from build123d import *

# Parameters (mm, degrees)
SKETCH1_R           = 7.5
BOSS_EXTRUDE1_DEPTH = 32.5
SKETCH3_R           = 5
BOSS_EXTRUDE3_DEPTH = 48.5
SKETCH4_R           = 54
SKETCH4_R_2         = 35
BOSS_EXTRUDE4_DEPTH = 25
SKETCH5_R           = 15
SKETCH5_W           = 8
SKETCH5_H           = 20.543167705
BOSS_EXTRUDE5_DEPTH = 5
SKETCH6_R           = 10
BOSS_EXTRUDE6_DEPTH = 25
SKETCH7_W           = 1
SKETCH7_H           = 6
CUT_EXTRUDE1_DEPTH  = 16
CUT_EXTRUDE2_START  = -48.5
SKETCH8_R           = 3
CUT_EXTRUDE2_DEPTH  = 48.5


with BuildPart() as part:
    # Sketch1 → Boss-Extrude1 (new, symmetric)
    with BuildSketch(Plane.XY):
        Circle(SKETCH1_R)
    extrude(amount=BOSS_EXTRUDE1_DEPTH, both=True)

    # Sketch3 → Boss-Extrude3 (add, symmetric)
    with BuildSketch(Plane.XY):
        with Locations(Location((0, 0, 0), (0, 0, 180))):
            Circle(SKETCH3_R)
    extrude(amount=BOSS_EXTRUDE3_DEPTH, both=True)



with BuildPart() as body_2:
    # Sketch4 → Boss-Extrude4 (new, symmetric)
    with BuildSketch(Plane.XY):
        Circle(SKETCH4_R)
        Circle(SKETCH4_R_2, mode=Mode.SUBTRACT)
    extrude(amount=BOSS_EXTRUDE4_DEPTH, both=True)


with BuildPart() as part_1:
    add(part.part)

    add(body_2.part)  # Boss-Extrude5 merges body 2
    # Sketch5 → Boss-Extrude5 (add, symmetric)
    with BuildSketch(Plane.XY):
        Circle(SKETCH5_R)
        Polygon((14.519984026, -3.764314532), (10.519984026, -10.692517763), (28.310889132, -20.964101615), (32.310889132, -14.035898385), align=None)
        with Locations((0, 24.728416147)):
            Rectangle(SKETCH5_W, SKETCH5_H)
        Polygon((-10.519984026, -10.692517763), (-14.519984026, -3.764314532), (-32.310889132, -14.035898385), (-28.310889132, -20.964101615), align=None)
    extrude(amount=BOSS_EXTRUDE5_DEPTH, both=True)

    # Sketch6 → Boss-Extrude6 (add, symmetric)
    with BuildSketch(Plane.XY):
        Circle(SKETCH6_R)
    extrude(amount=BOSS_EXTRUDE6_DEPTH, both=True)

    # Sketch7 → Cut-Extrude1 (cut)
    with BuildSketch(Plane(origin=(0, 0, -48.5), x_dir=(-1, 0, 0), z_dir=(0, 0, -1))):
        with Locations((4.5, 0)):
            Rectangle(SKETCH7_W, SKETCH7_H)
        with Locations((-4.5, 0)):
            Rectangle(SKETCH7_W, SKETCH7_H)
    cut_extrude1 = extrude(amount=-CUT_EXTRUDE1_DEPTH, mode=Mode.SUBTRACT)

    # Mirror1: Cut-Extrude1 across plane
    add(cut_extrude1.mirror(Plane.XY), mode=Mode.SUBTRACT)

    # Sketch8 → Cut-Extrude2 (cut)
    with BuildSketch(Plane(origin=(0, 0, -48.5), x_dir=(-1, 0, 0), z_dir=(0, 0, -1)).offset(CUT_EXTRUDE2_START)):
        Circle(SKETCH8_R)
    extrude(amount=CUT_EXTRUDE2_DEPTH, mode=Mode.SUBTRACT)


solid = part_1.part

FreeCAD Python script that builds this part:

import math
import FreeCAD as App
import Part
import Sketcher

V = App.Vector
Q = App.Units.Quantity


def add_polygon(sketch, points):
    """Adds a closed chain of lines whose ends are joined by coincident constraints."""
    first, n = sketch.GeometryCount, len(points)
    for a, b in zip(points, points[1:] + points[:1]):
        sketch.addGeometry(Part.LineSegment(App.Vector(*a, 0), App.Vector(*b, 0)), False)
    for i in range(n):
        sketch.addConstraint(Sketcher.Constraint("Coincident", first + i, 2, first + (i + 1) % n, 1))

doc = App.newDocument("Part")
body = doc.addObject("PartDesign::Body", "Body")

# Sketch on XY plane
sketch1 = doc.addObject("Sketcher::SketchObject", "Sketch")
body.addObject(sketch1)
sketch1.AttachmentSupport = (doc.XY_Plane, [""])
sketch1.MapMode = "FlatFace"
sketch1.addGeometry(Part.Circle(V(0, 0, 0), V(0, 0, 1), 8), False)
sketch1.addConstraint(Sketcher.Constraint("Coincident", 0, 3, -1, 1))
sketch1.addConstraint(Sketcher.Constraint("Diameter", 0, Q("15 mm")))
pad1 = doc.addObject("PartDesign::Pad", "Pad")
body.addObject(pad1)
pad1.Profile = sketch1
pad1.Length = 65
pad1.Midplane = True

# Sketch on XY plane
sketch2 = doc.addObject("Sketcher::SketchObject", "Sketch001")
body.addObject(sketch2)
sketch2.AttachmentSupport = (doc.XY_Plane, [""])
sketch2.MapMode = "FlatFace"
sketch2.addGeometry(Part.Circle(V(0, 0, 0), V(0, 0, 1), 5), False)
sketch2.addConstraint(Sketcher.Constraint("Coincident", 0, 3, -1, 1))
sketch2.addConstraint(Sketcher.Constraint("Diameter", 0, Q("10 mm")))
pad2 = doc.addObject("PartDesign::Pad", "Pad001")
body.addObject(pad2)
pad2.Profile = sketch2
pad2.Length = 97
pad2.Midplane = True
body2 = doc.addObject("PartDesign::Body", "Body001")

# Sketch on XY plane
sketch3 = doc.addObject("Sketcher::SketchObject", "Sketch002")
body2.addObject(sketch3)
sketch3.AttachmentSupport = (doc.getObject("XY_Plane001"), [""])
sketch3.MapMode = "FlatFace"
sketch3.addGeometry(Part.Circle(V(0, 0, 0), V(0, 0, 1), 54), False)
sketch3.addGeometry(Part.Circle(V(0, 0, 0), V(0, 0, 1), 35), False)
sketch3.addConstraint(Sketcher.Constraint("Coincident", 0, 3, -1, 1))
sketch3.addConstraint(Sketcher.Constraint("Coincident", 1, 3, -1, 1))
sketch3.addConstraint(Sketcher.Constraint("Diameter", 0, Q("108 mm")))
sketch3.addConstraint(Sketcher.Constraint("Diameter", 1, Q("70 mm")))
pad3 = doc.addObject("PartDesign::Pad", "Pad002")
body2.addObject(pad3)
pad3.Profile = sketch3
pad3.Length = 50
pad3.Midplane = True
body.AllowCompound = True
doc.recompute()

boolean = doc.addObject("PartDesign::Boolean", "Boolean")
body.addObject(boolean)
boolean.Type = "Fuse"
boolean.addObjects([body2])

# Sketch on XY plane
sketch4 = doc.addObject("Sketcher::SketchObject", "Sketch003")
body.addObject(sketch4)
sketch4.AttachmentSupport = (doc.XY_Plane, [""])
sketch4.MapMode = "FlatFace"
sketch4.addGeometry(Part.LineSegment(V(28, -21, 0), V(32, -14, 0)), False)
sketch4.addGeometry(Part.LineSegment(V(32, -14, 0), V(15, -4, 0)), False)
sketch4.addGeometry(Part.ArcOfCircle(Part.Circle(V(0, 0, 0), V(0, 0, 1), 15), math.radians(-15), math.radians(75)), False)
sketch4.addGeometry(Part.LineSegment(V(4, 14, 0), V(4, 35, 0)), False)
sketch4.addGeometry(Part.LineSegment(V(4, 35, 0), V(-4, 35, 0)), False)
sketch4.addGeometry(Part.LineSegment(V(-4, 35, 0), V(-4, 14, 0)), False)
sketch4.addGeometry(Part.ArcOfCircle(Part.Circle(V(0, 0, 0), V(0, 0, 1), 15), math.radians(105), math.radians(195)), False)
sketch4.addGeometry(Part.LineSegment(V(-15, -4, 0), V(-32, -14, 0)), False)
sketch4.addGeometry(Part.LineSegment(V(-32, -14, 0), V(-28, -21, 0)), False)
sketch4.addGeometry(Part.LineSegment(V(-28, -21, 0), V(-11, -11, 0)), False)
sketch4.addGeometry(Part.ArcOfCircle(Part.Circle(V(0, 0, 0), V(0, 0, 1), 15), math.radians(-135), math.radians(-45)), False)
sketch4.addGeometry(Part.LineSegment(V(11, -11, 0), V(28, -21, 0)), False)
sketch4.addConstraint(Sketcher.Constraint("Coincident", 0, 2, 1, 1))
sketch4.addConstraint(Sketcher.Constraint("Coincident", 1, 2, 2, 1))
sketch4.addConstraint(Sketcher.Constraint("Coincident", 2, 2, 3, 1))
sketch4.addConstraint(Sketcher.Constraint("Coincident", 3, 2, 4, 1))
sketch4.addConstraint(Sketcher.Constraint("Coincident", 4, 2, 5, 1))
sketch4.addConstraint(Sketcher.Constraint("Coincident", 5, 2, 6, 1))
sketch4.addConstraint(Sketcher.Constraint("Coincident", 6, 2, 7, 1))
sketch4.addConstraint(Sketcher.Constraint("Coincident", 7, 2, 8, 1))
sketch4.addConstraint(Sketcher.Constraint("Coincident", 8, 2, 9, 1))
sketch4.addConstraint(Sketcher.Constraint("Coincident", 9, 2, 10, 1))
sketch4.addConstraint(Sketcher.Constraint("Coincident", 10, 2, 11, 1))
sketch4.addConstraint(Sketcher.Constraint("Coincident", 11, 2, 0, 1))
sketch4.addConstraint(Sketcher.Constraint("Vertical", 3))
sketch4.addConstraint(Sketcher.Constraint("Horizontal", 4))
sketch4.addConstraint(Sketcher.Constraint("Vertical", 5))
sketch4.addConstraint(Sketcher.Constraint("Coincident", 2, 3, -1, 1))
sketch4.addConstraint(Sketcher.Constraint("Coincident", 6, 3, -1, 1))
sketch4.addConstraint(Sketcher.Constraint("Coincident", 10, 3, -1, 1))
sketch4.addConstraint(Sketcher.Constraint("Equal", 2, 6))
sketch4.addConstraint(Sketcher.Constraint("Equal", 6, 10))
sketch4.addConstraint(Sketcher.Constraint("Symmetric", 0, 2, 7, 2, -2))
sketch4.addConstraint(Sketcher.Constraint("Symmetric", 8, 2, 11, 2, -2))
sketch4.addConstraint(Sketcher.Constraint("Perpendicular", 0, 1))
sketch4.addConstraint(Sketcher.Constraint("Perpendicular", 7, 8))
sketch4.addConstraint(Sketcher.Constraint("Perpendicular", 8, 9))
sketch4.addConstraint(Sketcher.Constraint("Parallel", 1, 11))
sketch4.addConstraint(Sketcher.Constraint("Horizontal", 2, 2, 5, 2))
sketch4.addConstraint(Sketcher.Constraint("Equal", 7, 9))
sketch4.addConstraint(Sketcher.Constraint("Radius", 2, Q("15 mm")))
sketch4.addConstraint(Sketcher.Constraint("DistanceX", 4, 2, 4, 1, Q("8 mm")))
sketch4.addConstraint(Sketcher.Constraint("Angle", 0, Q("60 deg")))
sketch4.addConstraint(Sketcher.Constraint("Distance", 0, Q("8 mm")))
sketch4.addConstraint(Sketcher.Constraint("DistanceY", -1, 1, 3, 2, Q("35 mm")))
sketch4.addConstraint(Sketcher.Constraint("DistanceY", 0, 2, -1, 1, Q("14.035898 mm")))
pad4 = doc.addObject("PartDesign::Pad", "Pad003")
body.addObject(pad4)
pad4.Profile = sketch4
pad4.Length = 10
pad4.Midplane = True

# Sketch on XY plane
sketch5 = doc.addObject("Sketcher::SketchObject", "Sketch004")
body.addObject(sketch5)
sketch5.AttachmentSupport = (doc.XY_Plane, [""])
sketch5.MapMode = "FlatFace"
sketch5.addGeometry(Part.Circle(V(0, 0, 0), V(0, 0, 1), 10), False)
sketch5.addConstraint(Sketcher.Constraint("Coincident", 0, 3, -1, 1))
sketch5.addConstraint(Sketcher.Constraint("Diameter", 0, Q("20 mm")))
pad5 = doc.addObject("PartDesign::Pad", "Pad004")
body.addObject(pad5)
pad5.Profile = sketch5
pad5.Length = 50
pad5.Midplane = True

# Sketch on XY plane
sketch6 = doc.addObject("Sketcher::SketchObject", "Sketch005")
body.addObject(sketch6)
sketch6.AttachmentSupport = (doc.XY_Plane, [""])
sketch6.MapMode = "FlatFace"
sketch6.AttachmentOffset = App.Placement(V(0, 0, -48.5), App.Rotation())
add_polygon(sketch6, [(-4, 3), (-4, -3), (-5, -3), (-5, 3)])  # lines 0-3
add_polygon(sketch6, [(5, 3), (5, -3), (4, -3), (4, 3)])  # lines 4-7
sketch6.addConstraint(Sketcher.Constraint("Vertical", 0))
sketch6.addConstraint(Sketcher.Constraint("Horizontal", 1))
sketch6.addConstraint(Sketcher.Constraint("Vertical", 2))
sketch6.addConstraint(Sketcher.Constraint("Horizontal", 3))
sketch6.addConstraint(Sketcher.Constraint("Vertical", 4))
sketch6.addConstraint(Sketcher.Constraint("Horizontal", 5))
sketch6.addConstraint(Sketcher.Constraint("Vertical", 6))
sketch6.addConstraint(Sketcher.Constraint("Horizontal", 7))
sketch6.addConstraint(Sketcher.Constraint("Symmetric", 2, 2, 4, 2, -1, 1))
sketch6.addConstraint(Sketcher.Constraint("Symmetric", 0, 2, 6, 2, -1, 1))
sketch6.addConstraint(Sketcher.Constraint("Horizontal", 1, 2, 4, 2))
sketch6.addConstraint(Sketcher.Constraint("DistanceX", 1, 2, 1, 1, Q("1 mm")))
sketch6.addConstraint(Sketcher.Constraint("DistanceY", 0, 2, 0, 1, Q("6 mm")))
sketch6.addConstraint(Sketcher.Constraint("DistanceX", 0, 2, -1, 1, Q("4 mm")))
pocket1 = doc.addObject("PartDesign::Pocket", "Pocket")
body.addObject(pocket1)
pocket1.Profile = sketch6
pocket1.Length = 16
pocket1.Reversed = True
doc.recompute()

mirrored = doc.addObject("PartDesign::Mirrored", "Mirrored")
body.addObject(mirrored)
mirrored.Originals = [pocket1]
mirrored.MirrorPlane = (doc.XY_Plane, [""])
body.Tip = mirrored

# Sketch on XY plane
sketch7 = doc.addObject("Sketcher::SketchObject", "Sketch006")
body.addObject(sketch7)
sketch7.AttachmentSupport = (doc.XY_Plane, [""])
sketch7.MapMode = "FlatFace"
sketch7.addGeometry(Part.Circle(V(0, 0, 0), V(0, 0, 1), 3), False)
sketch7.addConstraint(Sketcher.Constraint("Coincident", 0, 3, -1, 1))
sketch7.addConstraint(Sketcher.Constraint("Diameter", 0, Q("6 mm")))
pocket2 = doc.addObject("PartDesign::Pocket", "Pocket001")
body.addObject(pocket2)
pocket2.Profile = sketch7
pocket2.Length = 48.5

doc.recompute()
